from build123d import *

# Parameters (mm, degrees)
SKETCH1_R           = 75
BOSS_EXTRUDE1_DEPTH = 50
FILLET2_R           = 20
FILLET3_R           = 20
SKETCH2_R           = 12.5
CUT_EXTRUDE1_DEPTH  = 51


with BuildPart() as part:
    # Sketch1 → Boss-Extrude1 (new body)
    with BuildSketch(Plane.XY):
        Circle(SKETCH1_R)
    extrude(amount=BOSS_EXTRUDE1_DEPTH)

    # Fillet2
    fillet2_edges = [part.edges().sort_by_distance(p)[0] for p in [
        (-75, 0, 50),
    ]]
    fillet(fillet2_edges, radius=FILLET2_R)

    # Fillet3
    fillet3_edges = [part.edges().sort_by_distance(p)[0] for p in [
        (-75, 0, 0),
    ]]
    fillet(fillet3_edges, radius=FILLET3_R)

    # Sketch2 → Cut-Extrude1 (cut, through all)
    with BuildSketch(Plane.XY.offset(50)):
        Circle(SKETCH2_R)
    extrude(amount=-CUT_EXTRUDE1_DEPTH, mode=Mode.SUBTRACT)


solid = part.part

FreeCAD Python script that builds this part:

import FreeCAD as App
import Part
import Sketcher


def edges_at(feature, points):
    """Names of the edges that pass closest to the given points."""
    edges = feature.Shape.Edges
    near = lambda p: min(range(len(edges)), key=lambda i: edges[i].distToShape(Part.Vertex(*p))[0])
    return sorted({f"Edge{near(p) + 1}" for p in points})

doc = App.newDocument("Part")
body = doc.addObject("PartDesign::Body", "Body")

sketch1 = doc.addObject("Sketcher::SketchObject", "Sketch")
body.addObject(sketch1)
sketch1.AttachmentSupport = (doc.XY_Plane, [""])
sketch1.MapMode = "FlatFace"
sketch1.addGeometry(Part.Circle(App.Vector(0, 0, 0), App.Vector(0, 0, 1), 75), False)
sketch1.addConstraint([
    Sketcher.Constraint("Coincident", 0, 3, -1, 1),
    Sketcher.Constraint("Diameter", 0, 150.0),
])
pad1 = doc.addObject("PartDesign::Pad", "Pad")
body.addObject(pad1)
pad1.Profile = sketch1
pad1.Length = 50
doc.recompute()

fillet = doc.addObject("PartDesign::Fillet", "Fillet")
body.addObject(fillet)
fillet.Base = (pad1, edges_at(pad1, [(-75, 0, 50)]))
fillet.Radius = 20
doc.recompute()

fillet2 = doc.addObject("PartDesign::Fillet", "Fillet001")
body.addObject(fillet2)
fillet2.Base = (fillet, edges_at(fillet, [(-75, 0, 0)]))
fillet2.Radius = 20

sketch2 = doc.addObject("Sketcher::SketchObject", "Sketch001")
body.addObject(sketch2)
sketch2.AttachmentSupport = (doc.XY_Plane, [""])
sketch2.MapMode = "FlatFace"
sketch2.AttachmentOffset = App.Placement(App.Vector(0, 0, 50), App.Rotation())
sketch2.addGeometry(Part.Circle(App.Vector(0, 0, 0), App.Vector(0, 0, 1), 12), False)
sketch2.addConstraint([
    Sketcher.Constraint("Coincident", 0, 3, -1, 1),
    Sketcher.Constraint("Diameter", 0, 25.0),
])
pocket1 = doc.addObject("PartDesign::Pocket", "Pocket")
body.addObject(pocket1)
pocket1.Profile = sketch2
pocket1.Type = "ThroughAll"

doc.recompute()
